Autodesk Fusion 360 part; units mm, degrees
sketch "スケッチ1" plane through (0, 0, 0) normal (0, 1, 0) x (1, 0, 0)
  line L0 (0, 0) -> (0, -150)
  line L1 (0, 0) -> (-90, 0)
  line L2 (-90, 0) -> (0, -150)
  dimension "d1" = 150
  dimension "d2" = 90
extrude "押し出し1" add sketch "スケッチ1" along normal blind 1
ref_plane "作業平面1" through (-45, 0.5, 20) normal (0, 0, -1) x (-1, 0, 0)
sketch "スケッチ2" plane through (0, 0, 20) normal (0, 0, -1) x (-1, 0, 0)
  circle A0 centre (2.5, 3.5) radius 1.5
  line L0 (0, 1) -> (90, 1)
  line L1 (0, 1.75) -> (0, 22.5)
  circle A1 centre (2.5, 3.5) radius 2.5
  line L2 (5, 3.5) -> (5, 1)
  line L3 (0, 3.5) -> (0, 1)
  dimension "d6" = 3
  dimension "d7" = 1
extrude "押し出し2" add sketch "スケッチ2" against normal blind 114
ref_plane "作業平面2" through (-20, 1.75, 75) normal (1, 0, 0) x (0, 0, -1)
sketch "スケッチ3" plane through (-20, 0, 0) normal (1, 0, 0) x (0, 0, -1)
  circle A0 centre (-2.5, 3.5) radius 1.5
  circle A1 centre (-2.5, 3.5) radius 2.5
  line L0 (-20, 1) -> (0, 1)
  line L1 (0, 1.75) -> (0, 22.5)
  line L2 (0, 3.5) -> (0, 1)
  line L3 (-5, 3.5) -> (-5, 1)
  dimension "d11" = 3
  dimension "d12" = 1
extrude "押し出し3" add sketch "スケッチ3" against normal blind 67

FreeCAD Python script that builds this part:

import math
import FreeCAD as App
import Part
import Sketcher

V = App.Vector

doc = App.newDocument("Part")
body = doc.addObject("PartDesign::Body", "Body")

# Sketch on XZ plane
sketch1 = body.newObject("Sketcher::SketchObject", "Sketch")
sketch1.AttachmentSupport = (doc.getObject("XZ_Plane"), [""])
sketch1.MapMode = "FlatFace"
sketch1.addGeometry(Part.LineSegment(V(0, 150, 0), V(0, 0, 0)), False)
sketch1.addGeometry(Part.LineSegment(V(0, 0, 0), V(-90, 0, 0)), False)
sketch1.addGeometry(Part.LineSegment(V(-90, 0, 0), V(0, 150, 0)), False)
sketch1.addConstraint(Sketcher.Constraint("Coincident", 0, 2, 1, 1))
sketch1.addConstraint(Sketcher.Constraint("Coincident", 1, 2, 2, 1))
sketch1.addConstraint(Sketcher.Constraint("Coincident", 2, 2, 0, 1))
sketch1.addConstraint(Sketcher.Constraint("Vertical", 0))
sketch1.addConstraint(Sketcher.Constraint("Horizontal", 1))
sketch1.addConstraint(Sketcher.Constraint("Coincident", 0, 2, -1, 1))
sketch1.addConstraint(Sketcher.Constraint("DistanceX", 1, 2, 1, 1, 90.0))
sketch1.addConstraint(Sketcher.Constraint("DistanceY", 0, 2, 0, 1, 150.0))
pad1 = body.newObject("PartDesign::Pad", "Pad")
pad1.Profile = sketch1
pad1.Length = 1
pad1.Reversed = True

# Sketch on XY plane
sketch2 = body.newObject("Sketcher::SketchObject", "Sketch001")
sketch2.AttachmentSupport = (doc.getObject("XY_Plane"), [""])
sketch2.MapMode = "FlatFace"
sketch2.AttachmentOffset = App.Placement(V(0, 0, 20), App.Rotation())
sketch2.addGeometry(Part.LineSegment(V(0, 1, 0), V(-5, 1, 0)), False)
sketch2.addGeometry(Part.LineSegment(V(-5, 1, 0), V(-5, 3.5, 0)), False)
sketch2.addGeometry(Part.ArcOfCircle(Part.Circle(V(-2.5, 3.5, 0), V(0, 0, 1), 2.5), math.radians(0), math.radians(180)), False)
sketch2.addGeometry(Part.LineSegment(V(0, 3.5, 0), V(0, 1, 0)), False)
sketch2.addGeometry(Part.Circle(V(-2.5, 3.5, 0), V(0, 0, 1), 1.5), False)
sketch2.addConstraint(Sketcher.Constraint("Coincident", 0, 2, 1, 1))
sketch2.addConstraint(Sketcher.Constraint("Tangent", 1, 2, 2, 2))
sketch2.addConstraint(Sketcher.Constraint("Tangent", 2, 1, 3, 1))
sketch2.addConstraint(Sketcher.Constraint("Coincident", 3, 2, 0, 1))
sketch2.addConstraint(Sketcher.Constraint("Horizontal", 0))
sketch2.addConstraint(Sketcher.Constraint("Vertical", 1))
sketch2.addConstraint(Sketcher.Constraint("Vertical", 3))
sketch2.addConstraint(Sketcher.Constraint("Coincident", 4, 3, 2, 3))
sketch2.addConstraint(Sketcher.Constraint("PointOnObject", 2, 1, -2))
sketch2.addConstraint(Sketcher.Constraint("Diameter", 4, 3.0))
sketch2.addConstraint(Sketcher.Constraint("DistanceY", -1, 1, 0, 2, 1.0))
sketch2.addConstraint(Sketcher.Constraint("Radius", 2, 2.5))
sketch2.addConstraint(Sketcher.Constraint("DistanceY", 1, 1, 1, 2, 2.5))
pad2 = body.newObject("PartDesign::Pad", "Pad001")
pad2.Profile = sketch2
pad2.Length = 114

# Sketch on YZ plane
sketch3 = body.newObject("Sketcher::SketchObject", "Sketch002")
sketch3.AttachmentSupport = (doc.getObject("YZ_Plane"), [""])
sketch3.MapMode = "FlatFace"
sketch3.AttachmentOffset = App.Placement(V(0, 0, -20), App.Rotation())
sketch3.addGeometry(Part.ArcOfCircle(Part.Circle(V(3.5, 2.5, 0), V(0, 0, 1), 2.5), math.radians(-90), math.radians(90)), False)
sketch3.addGeometry(Part.LineSegment(V(3.5, 5, 0), V(1, 5, 0)), False)
sketch3.addGeometry(Part.LineSegment(V(1, 5, 0), V(1, 0, 0)), False)
sketch3.addGeometry(Part.LineSegment(V(1, 0, 0), V(3.5, 0, 0)), False)
sketch3.addGeometry(Part.Circle(V(3.5, 2.5, 0), V(0, 0, 1), 1.5), False)
sketch3.addConstraint(Sketcher.Constraint("Tangent", 0, 2, 1, 1))
sketch3.addConstraint(Sketcher.Constraint("Coincident", 1, 2, 2, 1))
sketch3.addConstraint(Sketcher.Constraint("Coincident", 2, 2, 3, 1))
sketch3.addConstraint(Sketcher.Constraint("Tangent", 3, 2, 0, 1))
sketch3.addConstraint(Sketcher.Constraint("Horizontal", 1))
sketch3.addConstraint(Sketcher.Constraint("Vertical", 2))
sketch3.addConstraint(Sketcher.Constraint("Horizontal", 3))
sketch3.addConstraint(Sketcher.Constraint("Coincident", 4, 3, 0, 3))
sketch3.addConstraint(Sketcher.Constraint("PointOnObject", 2, 2, -1))
sketch3.addConstraint(Sketcher.Constraint("Diameter", 4, 3.0))
sketch3.addConstraint(Sketcher.Constraint("DistanceX", -1, 1, 1, 2, 1.0))
sketch3.addConstraint(Sketcher.Constraint("Radius", 0, 2.5))
sketch3.addConstraint(Sketcher.Constraint("DistanceX", 1, 2, 1, 1, 2.5))
pad3 = body.newObject("PartDesign::Pad", "Pad002")
pad3.Profile = sketch3
pad3.Length = 67
pad3.Reversed = True

doc.recompute()
